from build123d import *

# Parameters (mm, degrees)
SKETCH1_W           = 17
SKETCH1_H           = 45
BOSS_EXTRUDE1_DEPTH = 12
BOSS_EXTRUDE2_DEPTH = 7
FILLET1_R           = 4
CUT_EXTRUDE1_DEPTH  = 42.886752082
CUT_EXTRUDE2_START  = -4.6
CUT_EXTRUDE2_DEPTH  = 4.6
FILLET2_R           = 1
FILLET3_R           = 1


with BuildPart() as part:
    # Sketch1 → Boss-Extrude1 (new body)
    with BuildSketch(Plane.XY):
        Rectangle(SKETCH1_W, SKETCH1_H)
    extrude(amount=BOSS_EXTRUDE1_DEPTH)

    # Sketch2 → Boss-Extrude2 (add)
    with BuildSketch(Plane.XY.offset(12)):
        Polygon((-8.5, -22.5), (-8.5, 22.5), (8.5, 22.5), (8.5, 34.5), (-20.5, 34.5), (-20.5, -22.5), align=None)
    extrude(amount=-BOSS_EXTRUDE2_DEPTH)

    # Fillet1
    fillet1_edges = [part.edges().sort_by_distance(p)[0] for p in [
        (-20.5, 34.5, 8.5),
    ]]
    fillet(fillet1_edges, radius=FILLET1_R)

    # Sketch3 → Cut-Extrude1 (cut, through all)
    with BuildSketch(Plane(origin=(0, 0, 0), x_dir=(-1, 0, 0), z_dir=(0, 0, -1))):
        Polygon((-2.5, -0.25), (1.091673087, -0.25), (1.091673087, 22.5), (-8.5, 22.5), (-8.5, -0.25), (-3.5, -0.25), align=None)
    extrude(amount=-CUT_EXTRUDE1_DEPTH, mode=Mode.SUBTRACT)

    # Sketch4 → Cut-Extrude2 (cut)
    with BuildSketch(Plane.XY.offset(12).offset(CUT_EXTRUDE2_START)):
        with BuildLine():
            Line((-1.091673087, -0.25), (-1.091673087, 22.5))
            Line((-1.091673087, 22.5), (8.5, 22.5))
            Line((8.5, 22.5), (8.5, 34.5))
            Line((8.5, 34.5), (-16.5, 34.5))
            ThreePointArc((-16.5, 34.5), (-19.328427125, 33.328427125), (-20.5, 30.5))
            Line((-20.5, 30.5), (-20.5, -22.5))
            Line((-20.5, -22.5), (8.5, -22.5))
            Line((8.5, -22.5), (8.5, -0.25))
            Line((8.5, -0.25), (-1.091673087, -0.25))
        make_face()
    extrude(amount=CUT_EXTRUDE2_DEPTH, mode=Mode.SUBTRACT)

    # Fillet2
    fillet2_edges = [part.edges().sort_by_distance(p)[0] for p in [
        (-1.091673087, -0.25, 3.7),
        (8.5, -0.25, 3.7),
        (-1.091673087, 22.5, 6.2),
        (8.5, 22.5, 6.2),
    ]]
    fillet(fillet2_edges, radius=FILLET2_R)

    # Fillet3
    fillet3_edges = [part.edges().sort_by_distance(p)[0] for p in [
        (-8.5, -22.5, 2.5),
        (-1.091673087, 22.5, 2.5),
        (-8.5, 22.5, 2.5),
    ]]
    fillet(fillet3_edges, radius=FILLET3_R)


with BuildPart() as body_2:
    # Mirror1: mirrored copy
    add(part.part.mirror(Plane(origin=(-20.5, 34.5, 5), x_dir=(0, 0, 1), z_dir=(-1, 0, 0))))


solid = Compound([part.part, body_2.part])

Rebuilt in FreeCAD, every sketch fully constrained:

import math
import FreeCAD as App
import Part
import Sketcher
from FreeCAD import Vector
Q = App.Units.Quantity


def edges_at(feature, points):
    """Names of the edges that pass closest to the given points."""
    edges = feature.Shape.Edges
    near = lambda p: min(range(len(edges)), key=lambda i: edges[i].distToShape(Part.Vertex(*p))[0])
    return sorted({f"Edge{near(p) + 1}" for p in points})


def add_polygon(sketch, points):
    """Adds a closed chain of lines whose ends are joined by coincident constraints."""
    first, n = sketch.GeometryCount, len(points)
    for a, b in zip(points, points[1:] + points[:1]):
        sketch.addGeometry(Part.LineSegment(App.Vector(*a, 0), App.Vector(*b, 0)), False)
    for i in range(n):
        sketch.addConstraint(Sketcher.Constraint("Coincident", first + i, 2, first + (i + 1) % n, 1))

doc = App.newDocument("Part")
params = doc.addObject("Spreadsheet::Sheet", "Params")
for row, (alias, value) in enumerate([
    ("sketch1_width", "17 mm"),
    ("sketch1_height", "45 mm"),
    ("pad1_length", "12 mm"),
    ("sketch2_width", "17 mm"),
    ("sketch2_width2", "29 mm"),
    ("sketch2_height", "45 mm"),
    ("pad2_length", "7 mm"),
    ("fillet_radius", "4 mm"),
    ("sketch3_height", "22.75 mm"),
    ("sketch4_radius", "4 mm"),
    ("sketch4_width", "25 mm"),
    ("sketch4_height", "12 mm"),
    ("sketch4_height2", "53 mm"),
    ("sketch4_height3", "22.75 mm"),
    ("pocket2_length", "4.6 mm"),
    ("fillet2_radius", "1 mm"),
    ("fillet3_radius", "1 mm"),
], start=1):
    params.set(f"A{row}", alias)
    params.set(f"B{row}", "=" + value)
    params.setAlias(f"B{row}", alias)

body = doc.addObject("PartDesign::Body", "Body")

# Sketch on XY plane
sketch1 = body.newObject("Sketcher::SketchObject", "Sketch")
sketch1.AttachmentSupport = (doc.getObject("XY_Plane"), [""])
sketch1.MapMode = "FlatFace"
add_polygon(sketch1, [(-8, 22), (-8, -22), (8, -22), (8, 22)])  # lines 0-3
sketch1.addConstraint(Sketcher.Constraint("Vertical", 0))
sketch1.addConstraint(Sketcher.Constraint("Horizontal", 1))
sketch1.addConstraint(Sketcher.Constraint("Vertical", 2))
sketch1.addConstraint(Sketcher.Constraint("Horizontal", 3))
sketch1.addConstraint(Sketcher.Constraint("Symmetric", 0, 2, 2, 2, -1, 1))
sketch1.addConstraint(Sketcher.Constraint("DistanceX", 1, 1, 1, 2, Q("17 mm")))
sketch1.addConstraint(Sketcher.Constraint("DistanceY", 0, 2, 0, 1, Q("45 mm")))
sketch1.setExpression("Constraints[9]", "Params.sketch1_width")
sketch1.setExpression("Constraints[10]", "Params.sketch1_height")
pad1 = body.newObject("PartDesign::Pad", "Pad")
pad1.Profile = sketch1
pad1.setExpression("Length", "Params.pad1_length")

# Sketch on XY plane
sketch2 = body.newObject("Sketcher::SketchObject", "Sketch001")
sketch2.AttachmentSupport = (doc.getObject("XY_Plane"), [""])
sketch2.MapMode = "FlatFace"
sketch2.AttachmentOffset = App.Placement(Vector(0, 0, 12), App.Rotation())
add_polygon(sketch2, [(-8, -22), (-8, 22), (8, 22), (8, 34), (-20, 34), (-20, -22)])  # lines 0-5
sketch2.addConstraint(Sketcher.Constraint("Vertical", 0))
sketch2.addConstraint(Sketcher.Constraint("Horizontal", 1))
sketch2.addConstraint(Sketcher.Constraint("Vertical", 2))
sketch2.addConstraint(Sketcher.Constraint("Horizontal", 3))
sketch2.addConstraint(Sketcher.Constraint("Vertical", 4))
sketch2.addConstraint(Sketcher.Constraint("Horizontal", 5))
sketch2.addConstraint(Sketcher.Constraint("Symmetric", 1, 2, 5, 2, -1, 1))
sketch2.addConstraint(Sketcher.Constraint("Equal", 5, 2))
sketch2.addConstraint(Sketcher.Constraint("DistanceX", 1, 1, 1, 2, Q("17 mm")))
sketch2.addConstraint(Sketcher.Constraint("DistanceX", 3, 2, 3, 1, Q("29 mm")))
sketch2.addConstraint(Sketcher.Constraint("DistanceY", 0, 1, 0, 2, Q("45 mm")))
sketch2.setExpression("Constraints[14]", "Params.sketch2_width")
sketch2.setExpression("Constraints[15]", "Params.sketch2_width2")
sketch2.setExpression("Constraints[16]", "Params.sketch2_height")
pad2 = body.newObject("PartDesign::Pad", "Pad001")
pad2.Profile = sketch2
pad2.setExpression("Length", "Params.pad2_length")
pad2.Reversed = True
doc.recompute()

fillet = body.newObject("PartDesign::Fillet", "Fillet")
fillet.Base = (pad2, edges_at(pad2, [(-20.5, 34.5, 8.5)]))
fillet.setExpression("Radius", "Params.fillet_radius")

# Sketch on XY plane
sketch3 = body.newObject("Sketcher::SketchObject", "Sketch002")
sketch3.AttachmentSupport = (doc.getObject("XY_Plane"), [""])
sketch3.MapMode = "FlatFace"
add_polygon(sketch3, [(-1, 0), (-1, 22), (8, 22), (8, 0)])  # lines 0-3
sketch3.addConstraint(Sketcher.Constraint("Vertical", 0))
sketch3.addConstraint(Sketcher.Constraint("Horizontal", 1))
sketch3.addConstraint(Sketcher.Constraint("Vertical", 2))
sketch3.addConstraint(Sketcher.Constraint("Horizontal", 3))
sketch3.addConstraint(Sketcher.Constraint("DistanceY", 0, 1, 0, 2, Q("22.75 mm")))
sketch3.addConstraint(Sketcher.Constraint("DistanceY", -1, 1, 0, 2, Q("22.5 mm")))
sketch3.addConstraint(Sketcher.Constraint("DistanceX", -1, 1, 1, 2, Q("8.5 mm")))
sketch3.addConstraint(Sketcher.Constraint("DistanceX", 1, 1, 1, 2, Q("9.591673 mm")))
sketch3.setExpression("Constraints[8]", "Params.sketch3_height")
pocket1 = body.newObject("PartDesign::Pocket", "Pocket")
pocket1.Profile = sketch3
pocket1.Type = "ThroughAll"
pocket1.Reversed = True

# Sketch on XY plane
sketch4 = body.newObject("Sketcher::SketchObject", "Sketch003")
sketch4.AttachmentSupport = (doc.getObject("XY_Plane"), [""])
sketch4.MapMode = "FlatFace"
sketch4.AttachmentOffset = App.Placement(Vector(0, 0, 7.4), App.Rotation())
sketch4.addGeometry(Part.LineSegment(Vector(-1.1, -0.2, 0), Vector(-1.1, 22.5, 0)), False)
sketch4.addGeometry(Part.LineSegment(Vector(-1.1, 22.5, 0), Vector(8.5, 22.5, 0)), False)
sketch4.addGeometry(Part.LineSegment(Vector(8.5, 22.5, 0), Vector(8.5, 34.5, 0)), False)
sketch4.addGeometry(Part.LineSegment(Vector(8.5, 34.5, 0), Vector(-16.5, 34.5, 0)), False)
sketch4.addGeometry(Part.ArcOfCircle(Part.Circle(Vector(-16.5, 30.5, 0), Vector(0, 0, 1), 4), math.radians(90), math.radians(180)), False)
sketch4.addGeometry(Part.LineSegment(Vector(-20.5, 30.5, 0), Vector(-20.5, -22.5, 0)), False)
sketch4.addGeometry(Part.LineSegment(Vector(-20.5, -22.5, 0), Vector(8.5, -22.5, 0)), False)
sketch4.addGeometry(Part.LineSegment(Vector(8.5, -22.5, 0), Vector(8.5, -0.2, 0)), False)
sketch4.addGeometry(Part.LineSegment(Vector(8.5, -0.2, 0), Vector(-1.1, -0.2, 0)), False)
sketch4.addConstraint(Sketcher.Constraint("Coincident", 0, 2, 1, 1))
sketch4.addConstraint(Sketcher.Constraint("Coincident", 1, 2, 2, 1))
sketch4.addConstraint(Sketcher.Constraint("Coincident", 2, 2, 3, 1))
sketch4.addConstraint(Sketcher.Constraint("Tangent", 3, 2, 4, 1))
sketch4.addConstraint(Sketcher.Constraint("Tangent", 4, 2, 5, 1))
sketch4.addConstraint(Sketcher.Constraint("Coincident", 5, 2, 6, 1))
sketch4.addConstraint(Sketcher.Constraint("Coincident", 6, 2, 7, 1))
sketch4.addConstraint(Sketcher.Constraint("Coincident", 7, 2, 8, 1))
sketch4.addConstraint(Sketcher.Constraint("Coincident", 8, 2, 0, 1))
sketch4.addConstraint(Sketcher.Constraint("Vertical", 0))
sketch4.addConstraint(Sketcher.Constraint("Horizontal", 1))
sketch4.addConstraint(Sketcher.Constraint("Vertical", 2))
sketch4.addConstraint(Sketcher.Constraint("Horizontal", 3))
sketch4.addConstraint(Sketcher.Constraint("Vertical", 5))
sketch4.addConstraint(Sketcher.Constraint("Horizontal", 6))
sketch4.addConstraint(Sketcher.Constraint("Vertical", 7))
sketch4.addConstraint(Sketcher.Constraint("Horizontal", 8))
sketch4.addConstraint(Sketcher.Constraint("Symmetric", 1, 2, 6, 2, -1))
sketch4.addConstraint(Sketcher.Constraint("Radius", 4, Q("4 mm")))
sketch4.addConstraint(Sketcher.Constraint("DistanceX", 3, 2, 3, 1, Q("25 mm")))
sketch4.addConstraint(Sketcher.Constraint("DistanceY", 2, 1, 2, 2, Q("12 mm")))
sketch4.addConstraint(Sketcher.Constraint("DistanceY", 5, 2, 5, 1, Q("53 mm")))
sketch4.addConstraint(Sketcher.Constraint("DistanceY", 0, 1, 0, 2, Q("22.75 mm")))
sketch4.addConstraint(Sketcher.Constraint("DistanceX", 4, 3, -1, 1, Q("16.5 mm")))
sketch4.addConstraint(Sketcher.Constraint("DistanceX", 1, 1, 1, 2, Q("9.591673 mm")))
sketch4.setExpression("Constraints[18]", "Params.sketch4_radius")
sketch4.setExpression("Constraints[19]", "Params.sketch4_width")
sketch4.setExpression("Constraints[20]", "Params.sketch4_height")
sketch4.setExpression("Constraints[21]", "Params.sketch4_height2")
sketch4.setExpression("Constraints[22]", "Params.sketch4_height3")
pocket2 = body.newObject("PartDesign::Pocket", "Pocket001")
pocket2.Profile = sketch4
pocket2.setExpression("Length", "Params.pocket2_length")
pocket2.Reversed = True
doc.recompute()

fillet2 = body.newObject("PartDesign::Fillet", "Fillet001")
fillet2.Base = (pocket2, edges_at(pocket2, [
    (-1.092, -0.25, 3.7),
    (8.5, -0.25, 3.7),
    (-1.092, 22.5, 6.2),
    (8.5, 22.5, 6.2),
]))
fillet2.setExpression("Radius", "Params.fillet2_radius")
doc.recompute()

fillet3 = body.newObject("PartDesign::Fillet", "Fillet002")
fillet3.Base = (fillet2, edges_at(fillet2, [(-8.5, -22.5, 2.5), (-1.092, 22.5, 2.5), (-8.5, 22.5, 2.5)]))
fillet3.setExpression("Radius", "Params.fillet3_radius")
body2 = doc.addObject("PartDesign::Body", "Body001")
doc.recompute()

mirroring = doc.addObject("Part::Mirroring", "Mirroring")
mirroring.Source = body
mirroring.Base = Vector(-20.5, 34.5, 5)
mirroring.Normal = Vector(-1, 0, 0)
body2.BaseFeature = mirroring
doc.recompute()
mirroring.Visibility = False

doc.recompute()
